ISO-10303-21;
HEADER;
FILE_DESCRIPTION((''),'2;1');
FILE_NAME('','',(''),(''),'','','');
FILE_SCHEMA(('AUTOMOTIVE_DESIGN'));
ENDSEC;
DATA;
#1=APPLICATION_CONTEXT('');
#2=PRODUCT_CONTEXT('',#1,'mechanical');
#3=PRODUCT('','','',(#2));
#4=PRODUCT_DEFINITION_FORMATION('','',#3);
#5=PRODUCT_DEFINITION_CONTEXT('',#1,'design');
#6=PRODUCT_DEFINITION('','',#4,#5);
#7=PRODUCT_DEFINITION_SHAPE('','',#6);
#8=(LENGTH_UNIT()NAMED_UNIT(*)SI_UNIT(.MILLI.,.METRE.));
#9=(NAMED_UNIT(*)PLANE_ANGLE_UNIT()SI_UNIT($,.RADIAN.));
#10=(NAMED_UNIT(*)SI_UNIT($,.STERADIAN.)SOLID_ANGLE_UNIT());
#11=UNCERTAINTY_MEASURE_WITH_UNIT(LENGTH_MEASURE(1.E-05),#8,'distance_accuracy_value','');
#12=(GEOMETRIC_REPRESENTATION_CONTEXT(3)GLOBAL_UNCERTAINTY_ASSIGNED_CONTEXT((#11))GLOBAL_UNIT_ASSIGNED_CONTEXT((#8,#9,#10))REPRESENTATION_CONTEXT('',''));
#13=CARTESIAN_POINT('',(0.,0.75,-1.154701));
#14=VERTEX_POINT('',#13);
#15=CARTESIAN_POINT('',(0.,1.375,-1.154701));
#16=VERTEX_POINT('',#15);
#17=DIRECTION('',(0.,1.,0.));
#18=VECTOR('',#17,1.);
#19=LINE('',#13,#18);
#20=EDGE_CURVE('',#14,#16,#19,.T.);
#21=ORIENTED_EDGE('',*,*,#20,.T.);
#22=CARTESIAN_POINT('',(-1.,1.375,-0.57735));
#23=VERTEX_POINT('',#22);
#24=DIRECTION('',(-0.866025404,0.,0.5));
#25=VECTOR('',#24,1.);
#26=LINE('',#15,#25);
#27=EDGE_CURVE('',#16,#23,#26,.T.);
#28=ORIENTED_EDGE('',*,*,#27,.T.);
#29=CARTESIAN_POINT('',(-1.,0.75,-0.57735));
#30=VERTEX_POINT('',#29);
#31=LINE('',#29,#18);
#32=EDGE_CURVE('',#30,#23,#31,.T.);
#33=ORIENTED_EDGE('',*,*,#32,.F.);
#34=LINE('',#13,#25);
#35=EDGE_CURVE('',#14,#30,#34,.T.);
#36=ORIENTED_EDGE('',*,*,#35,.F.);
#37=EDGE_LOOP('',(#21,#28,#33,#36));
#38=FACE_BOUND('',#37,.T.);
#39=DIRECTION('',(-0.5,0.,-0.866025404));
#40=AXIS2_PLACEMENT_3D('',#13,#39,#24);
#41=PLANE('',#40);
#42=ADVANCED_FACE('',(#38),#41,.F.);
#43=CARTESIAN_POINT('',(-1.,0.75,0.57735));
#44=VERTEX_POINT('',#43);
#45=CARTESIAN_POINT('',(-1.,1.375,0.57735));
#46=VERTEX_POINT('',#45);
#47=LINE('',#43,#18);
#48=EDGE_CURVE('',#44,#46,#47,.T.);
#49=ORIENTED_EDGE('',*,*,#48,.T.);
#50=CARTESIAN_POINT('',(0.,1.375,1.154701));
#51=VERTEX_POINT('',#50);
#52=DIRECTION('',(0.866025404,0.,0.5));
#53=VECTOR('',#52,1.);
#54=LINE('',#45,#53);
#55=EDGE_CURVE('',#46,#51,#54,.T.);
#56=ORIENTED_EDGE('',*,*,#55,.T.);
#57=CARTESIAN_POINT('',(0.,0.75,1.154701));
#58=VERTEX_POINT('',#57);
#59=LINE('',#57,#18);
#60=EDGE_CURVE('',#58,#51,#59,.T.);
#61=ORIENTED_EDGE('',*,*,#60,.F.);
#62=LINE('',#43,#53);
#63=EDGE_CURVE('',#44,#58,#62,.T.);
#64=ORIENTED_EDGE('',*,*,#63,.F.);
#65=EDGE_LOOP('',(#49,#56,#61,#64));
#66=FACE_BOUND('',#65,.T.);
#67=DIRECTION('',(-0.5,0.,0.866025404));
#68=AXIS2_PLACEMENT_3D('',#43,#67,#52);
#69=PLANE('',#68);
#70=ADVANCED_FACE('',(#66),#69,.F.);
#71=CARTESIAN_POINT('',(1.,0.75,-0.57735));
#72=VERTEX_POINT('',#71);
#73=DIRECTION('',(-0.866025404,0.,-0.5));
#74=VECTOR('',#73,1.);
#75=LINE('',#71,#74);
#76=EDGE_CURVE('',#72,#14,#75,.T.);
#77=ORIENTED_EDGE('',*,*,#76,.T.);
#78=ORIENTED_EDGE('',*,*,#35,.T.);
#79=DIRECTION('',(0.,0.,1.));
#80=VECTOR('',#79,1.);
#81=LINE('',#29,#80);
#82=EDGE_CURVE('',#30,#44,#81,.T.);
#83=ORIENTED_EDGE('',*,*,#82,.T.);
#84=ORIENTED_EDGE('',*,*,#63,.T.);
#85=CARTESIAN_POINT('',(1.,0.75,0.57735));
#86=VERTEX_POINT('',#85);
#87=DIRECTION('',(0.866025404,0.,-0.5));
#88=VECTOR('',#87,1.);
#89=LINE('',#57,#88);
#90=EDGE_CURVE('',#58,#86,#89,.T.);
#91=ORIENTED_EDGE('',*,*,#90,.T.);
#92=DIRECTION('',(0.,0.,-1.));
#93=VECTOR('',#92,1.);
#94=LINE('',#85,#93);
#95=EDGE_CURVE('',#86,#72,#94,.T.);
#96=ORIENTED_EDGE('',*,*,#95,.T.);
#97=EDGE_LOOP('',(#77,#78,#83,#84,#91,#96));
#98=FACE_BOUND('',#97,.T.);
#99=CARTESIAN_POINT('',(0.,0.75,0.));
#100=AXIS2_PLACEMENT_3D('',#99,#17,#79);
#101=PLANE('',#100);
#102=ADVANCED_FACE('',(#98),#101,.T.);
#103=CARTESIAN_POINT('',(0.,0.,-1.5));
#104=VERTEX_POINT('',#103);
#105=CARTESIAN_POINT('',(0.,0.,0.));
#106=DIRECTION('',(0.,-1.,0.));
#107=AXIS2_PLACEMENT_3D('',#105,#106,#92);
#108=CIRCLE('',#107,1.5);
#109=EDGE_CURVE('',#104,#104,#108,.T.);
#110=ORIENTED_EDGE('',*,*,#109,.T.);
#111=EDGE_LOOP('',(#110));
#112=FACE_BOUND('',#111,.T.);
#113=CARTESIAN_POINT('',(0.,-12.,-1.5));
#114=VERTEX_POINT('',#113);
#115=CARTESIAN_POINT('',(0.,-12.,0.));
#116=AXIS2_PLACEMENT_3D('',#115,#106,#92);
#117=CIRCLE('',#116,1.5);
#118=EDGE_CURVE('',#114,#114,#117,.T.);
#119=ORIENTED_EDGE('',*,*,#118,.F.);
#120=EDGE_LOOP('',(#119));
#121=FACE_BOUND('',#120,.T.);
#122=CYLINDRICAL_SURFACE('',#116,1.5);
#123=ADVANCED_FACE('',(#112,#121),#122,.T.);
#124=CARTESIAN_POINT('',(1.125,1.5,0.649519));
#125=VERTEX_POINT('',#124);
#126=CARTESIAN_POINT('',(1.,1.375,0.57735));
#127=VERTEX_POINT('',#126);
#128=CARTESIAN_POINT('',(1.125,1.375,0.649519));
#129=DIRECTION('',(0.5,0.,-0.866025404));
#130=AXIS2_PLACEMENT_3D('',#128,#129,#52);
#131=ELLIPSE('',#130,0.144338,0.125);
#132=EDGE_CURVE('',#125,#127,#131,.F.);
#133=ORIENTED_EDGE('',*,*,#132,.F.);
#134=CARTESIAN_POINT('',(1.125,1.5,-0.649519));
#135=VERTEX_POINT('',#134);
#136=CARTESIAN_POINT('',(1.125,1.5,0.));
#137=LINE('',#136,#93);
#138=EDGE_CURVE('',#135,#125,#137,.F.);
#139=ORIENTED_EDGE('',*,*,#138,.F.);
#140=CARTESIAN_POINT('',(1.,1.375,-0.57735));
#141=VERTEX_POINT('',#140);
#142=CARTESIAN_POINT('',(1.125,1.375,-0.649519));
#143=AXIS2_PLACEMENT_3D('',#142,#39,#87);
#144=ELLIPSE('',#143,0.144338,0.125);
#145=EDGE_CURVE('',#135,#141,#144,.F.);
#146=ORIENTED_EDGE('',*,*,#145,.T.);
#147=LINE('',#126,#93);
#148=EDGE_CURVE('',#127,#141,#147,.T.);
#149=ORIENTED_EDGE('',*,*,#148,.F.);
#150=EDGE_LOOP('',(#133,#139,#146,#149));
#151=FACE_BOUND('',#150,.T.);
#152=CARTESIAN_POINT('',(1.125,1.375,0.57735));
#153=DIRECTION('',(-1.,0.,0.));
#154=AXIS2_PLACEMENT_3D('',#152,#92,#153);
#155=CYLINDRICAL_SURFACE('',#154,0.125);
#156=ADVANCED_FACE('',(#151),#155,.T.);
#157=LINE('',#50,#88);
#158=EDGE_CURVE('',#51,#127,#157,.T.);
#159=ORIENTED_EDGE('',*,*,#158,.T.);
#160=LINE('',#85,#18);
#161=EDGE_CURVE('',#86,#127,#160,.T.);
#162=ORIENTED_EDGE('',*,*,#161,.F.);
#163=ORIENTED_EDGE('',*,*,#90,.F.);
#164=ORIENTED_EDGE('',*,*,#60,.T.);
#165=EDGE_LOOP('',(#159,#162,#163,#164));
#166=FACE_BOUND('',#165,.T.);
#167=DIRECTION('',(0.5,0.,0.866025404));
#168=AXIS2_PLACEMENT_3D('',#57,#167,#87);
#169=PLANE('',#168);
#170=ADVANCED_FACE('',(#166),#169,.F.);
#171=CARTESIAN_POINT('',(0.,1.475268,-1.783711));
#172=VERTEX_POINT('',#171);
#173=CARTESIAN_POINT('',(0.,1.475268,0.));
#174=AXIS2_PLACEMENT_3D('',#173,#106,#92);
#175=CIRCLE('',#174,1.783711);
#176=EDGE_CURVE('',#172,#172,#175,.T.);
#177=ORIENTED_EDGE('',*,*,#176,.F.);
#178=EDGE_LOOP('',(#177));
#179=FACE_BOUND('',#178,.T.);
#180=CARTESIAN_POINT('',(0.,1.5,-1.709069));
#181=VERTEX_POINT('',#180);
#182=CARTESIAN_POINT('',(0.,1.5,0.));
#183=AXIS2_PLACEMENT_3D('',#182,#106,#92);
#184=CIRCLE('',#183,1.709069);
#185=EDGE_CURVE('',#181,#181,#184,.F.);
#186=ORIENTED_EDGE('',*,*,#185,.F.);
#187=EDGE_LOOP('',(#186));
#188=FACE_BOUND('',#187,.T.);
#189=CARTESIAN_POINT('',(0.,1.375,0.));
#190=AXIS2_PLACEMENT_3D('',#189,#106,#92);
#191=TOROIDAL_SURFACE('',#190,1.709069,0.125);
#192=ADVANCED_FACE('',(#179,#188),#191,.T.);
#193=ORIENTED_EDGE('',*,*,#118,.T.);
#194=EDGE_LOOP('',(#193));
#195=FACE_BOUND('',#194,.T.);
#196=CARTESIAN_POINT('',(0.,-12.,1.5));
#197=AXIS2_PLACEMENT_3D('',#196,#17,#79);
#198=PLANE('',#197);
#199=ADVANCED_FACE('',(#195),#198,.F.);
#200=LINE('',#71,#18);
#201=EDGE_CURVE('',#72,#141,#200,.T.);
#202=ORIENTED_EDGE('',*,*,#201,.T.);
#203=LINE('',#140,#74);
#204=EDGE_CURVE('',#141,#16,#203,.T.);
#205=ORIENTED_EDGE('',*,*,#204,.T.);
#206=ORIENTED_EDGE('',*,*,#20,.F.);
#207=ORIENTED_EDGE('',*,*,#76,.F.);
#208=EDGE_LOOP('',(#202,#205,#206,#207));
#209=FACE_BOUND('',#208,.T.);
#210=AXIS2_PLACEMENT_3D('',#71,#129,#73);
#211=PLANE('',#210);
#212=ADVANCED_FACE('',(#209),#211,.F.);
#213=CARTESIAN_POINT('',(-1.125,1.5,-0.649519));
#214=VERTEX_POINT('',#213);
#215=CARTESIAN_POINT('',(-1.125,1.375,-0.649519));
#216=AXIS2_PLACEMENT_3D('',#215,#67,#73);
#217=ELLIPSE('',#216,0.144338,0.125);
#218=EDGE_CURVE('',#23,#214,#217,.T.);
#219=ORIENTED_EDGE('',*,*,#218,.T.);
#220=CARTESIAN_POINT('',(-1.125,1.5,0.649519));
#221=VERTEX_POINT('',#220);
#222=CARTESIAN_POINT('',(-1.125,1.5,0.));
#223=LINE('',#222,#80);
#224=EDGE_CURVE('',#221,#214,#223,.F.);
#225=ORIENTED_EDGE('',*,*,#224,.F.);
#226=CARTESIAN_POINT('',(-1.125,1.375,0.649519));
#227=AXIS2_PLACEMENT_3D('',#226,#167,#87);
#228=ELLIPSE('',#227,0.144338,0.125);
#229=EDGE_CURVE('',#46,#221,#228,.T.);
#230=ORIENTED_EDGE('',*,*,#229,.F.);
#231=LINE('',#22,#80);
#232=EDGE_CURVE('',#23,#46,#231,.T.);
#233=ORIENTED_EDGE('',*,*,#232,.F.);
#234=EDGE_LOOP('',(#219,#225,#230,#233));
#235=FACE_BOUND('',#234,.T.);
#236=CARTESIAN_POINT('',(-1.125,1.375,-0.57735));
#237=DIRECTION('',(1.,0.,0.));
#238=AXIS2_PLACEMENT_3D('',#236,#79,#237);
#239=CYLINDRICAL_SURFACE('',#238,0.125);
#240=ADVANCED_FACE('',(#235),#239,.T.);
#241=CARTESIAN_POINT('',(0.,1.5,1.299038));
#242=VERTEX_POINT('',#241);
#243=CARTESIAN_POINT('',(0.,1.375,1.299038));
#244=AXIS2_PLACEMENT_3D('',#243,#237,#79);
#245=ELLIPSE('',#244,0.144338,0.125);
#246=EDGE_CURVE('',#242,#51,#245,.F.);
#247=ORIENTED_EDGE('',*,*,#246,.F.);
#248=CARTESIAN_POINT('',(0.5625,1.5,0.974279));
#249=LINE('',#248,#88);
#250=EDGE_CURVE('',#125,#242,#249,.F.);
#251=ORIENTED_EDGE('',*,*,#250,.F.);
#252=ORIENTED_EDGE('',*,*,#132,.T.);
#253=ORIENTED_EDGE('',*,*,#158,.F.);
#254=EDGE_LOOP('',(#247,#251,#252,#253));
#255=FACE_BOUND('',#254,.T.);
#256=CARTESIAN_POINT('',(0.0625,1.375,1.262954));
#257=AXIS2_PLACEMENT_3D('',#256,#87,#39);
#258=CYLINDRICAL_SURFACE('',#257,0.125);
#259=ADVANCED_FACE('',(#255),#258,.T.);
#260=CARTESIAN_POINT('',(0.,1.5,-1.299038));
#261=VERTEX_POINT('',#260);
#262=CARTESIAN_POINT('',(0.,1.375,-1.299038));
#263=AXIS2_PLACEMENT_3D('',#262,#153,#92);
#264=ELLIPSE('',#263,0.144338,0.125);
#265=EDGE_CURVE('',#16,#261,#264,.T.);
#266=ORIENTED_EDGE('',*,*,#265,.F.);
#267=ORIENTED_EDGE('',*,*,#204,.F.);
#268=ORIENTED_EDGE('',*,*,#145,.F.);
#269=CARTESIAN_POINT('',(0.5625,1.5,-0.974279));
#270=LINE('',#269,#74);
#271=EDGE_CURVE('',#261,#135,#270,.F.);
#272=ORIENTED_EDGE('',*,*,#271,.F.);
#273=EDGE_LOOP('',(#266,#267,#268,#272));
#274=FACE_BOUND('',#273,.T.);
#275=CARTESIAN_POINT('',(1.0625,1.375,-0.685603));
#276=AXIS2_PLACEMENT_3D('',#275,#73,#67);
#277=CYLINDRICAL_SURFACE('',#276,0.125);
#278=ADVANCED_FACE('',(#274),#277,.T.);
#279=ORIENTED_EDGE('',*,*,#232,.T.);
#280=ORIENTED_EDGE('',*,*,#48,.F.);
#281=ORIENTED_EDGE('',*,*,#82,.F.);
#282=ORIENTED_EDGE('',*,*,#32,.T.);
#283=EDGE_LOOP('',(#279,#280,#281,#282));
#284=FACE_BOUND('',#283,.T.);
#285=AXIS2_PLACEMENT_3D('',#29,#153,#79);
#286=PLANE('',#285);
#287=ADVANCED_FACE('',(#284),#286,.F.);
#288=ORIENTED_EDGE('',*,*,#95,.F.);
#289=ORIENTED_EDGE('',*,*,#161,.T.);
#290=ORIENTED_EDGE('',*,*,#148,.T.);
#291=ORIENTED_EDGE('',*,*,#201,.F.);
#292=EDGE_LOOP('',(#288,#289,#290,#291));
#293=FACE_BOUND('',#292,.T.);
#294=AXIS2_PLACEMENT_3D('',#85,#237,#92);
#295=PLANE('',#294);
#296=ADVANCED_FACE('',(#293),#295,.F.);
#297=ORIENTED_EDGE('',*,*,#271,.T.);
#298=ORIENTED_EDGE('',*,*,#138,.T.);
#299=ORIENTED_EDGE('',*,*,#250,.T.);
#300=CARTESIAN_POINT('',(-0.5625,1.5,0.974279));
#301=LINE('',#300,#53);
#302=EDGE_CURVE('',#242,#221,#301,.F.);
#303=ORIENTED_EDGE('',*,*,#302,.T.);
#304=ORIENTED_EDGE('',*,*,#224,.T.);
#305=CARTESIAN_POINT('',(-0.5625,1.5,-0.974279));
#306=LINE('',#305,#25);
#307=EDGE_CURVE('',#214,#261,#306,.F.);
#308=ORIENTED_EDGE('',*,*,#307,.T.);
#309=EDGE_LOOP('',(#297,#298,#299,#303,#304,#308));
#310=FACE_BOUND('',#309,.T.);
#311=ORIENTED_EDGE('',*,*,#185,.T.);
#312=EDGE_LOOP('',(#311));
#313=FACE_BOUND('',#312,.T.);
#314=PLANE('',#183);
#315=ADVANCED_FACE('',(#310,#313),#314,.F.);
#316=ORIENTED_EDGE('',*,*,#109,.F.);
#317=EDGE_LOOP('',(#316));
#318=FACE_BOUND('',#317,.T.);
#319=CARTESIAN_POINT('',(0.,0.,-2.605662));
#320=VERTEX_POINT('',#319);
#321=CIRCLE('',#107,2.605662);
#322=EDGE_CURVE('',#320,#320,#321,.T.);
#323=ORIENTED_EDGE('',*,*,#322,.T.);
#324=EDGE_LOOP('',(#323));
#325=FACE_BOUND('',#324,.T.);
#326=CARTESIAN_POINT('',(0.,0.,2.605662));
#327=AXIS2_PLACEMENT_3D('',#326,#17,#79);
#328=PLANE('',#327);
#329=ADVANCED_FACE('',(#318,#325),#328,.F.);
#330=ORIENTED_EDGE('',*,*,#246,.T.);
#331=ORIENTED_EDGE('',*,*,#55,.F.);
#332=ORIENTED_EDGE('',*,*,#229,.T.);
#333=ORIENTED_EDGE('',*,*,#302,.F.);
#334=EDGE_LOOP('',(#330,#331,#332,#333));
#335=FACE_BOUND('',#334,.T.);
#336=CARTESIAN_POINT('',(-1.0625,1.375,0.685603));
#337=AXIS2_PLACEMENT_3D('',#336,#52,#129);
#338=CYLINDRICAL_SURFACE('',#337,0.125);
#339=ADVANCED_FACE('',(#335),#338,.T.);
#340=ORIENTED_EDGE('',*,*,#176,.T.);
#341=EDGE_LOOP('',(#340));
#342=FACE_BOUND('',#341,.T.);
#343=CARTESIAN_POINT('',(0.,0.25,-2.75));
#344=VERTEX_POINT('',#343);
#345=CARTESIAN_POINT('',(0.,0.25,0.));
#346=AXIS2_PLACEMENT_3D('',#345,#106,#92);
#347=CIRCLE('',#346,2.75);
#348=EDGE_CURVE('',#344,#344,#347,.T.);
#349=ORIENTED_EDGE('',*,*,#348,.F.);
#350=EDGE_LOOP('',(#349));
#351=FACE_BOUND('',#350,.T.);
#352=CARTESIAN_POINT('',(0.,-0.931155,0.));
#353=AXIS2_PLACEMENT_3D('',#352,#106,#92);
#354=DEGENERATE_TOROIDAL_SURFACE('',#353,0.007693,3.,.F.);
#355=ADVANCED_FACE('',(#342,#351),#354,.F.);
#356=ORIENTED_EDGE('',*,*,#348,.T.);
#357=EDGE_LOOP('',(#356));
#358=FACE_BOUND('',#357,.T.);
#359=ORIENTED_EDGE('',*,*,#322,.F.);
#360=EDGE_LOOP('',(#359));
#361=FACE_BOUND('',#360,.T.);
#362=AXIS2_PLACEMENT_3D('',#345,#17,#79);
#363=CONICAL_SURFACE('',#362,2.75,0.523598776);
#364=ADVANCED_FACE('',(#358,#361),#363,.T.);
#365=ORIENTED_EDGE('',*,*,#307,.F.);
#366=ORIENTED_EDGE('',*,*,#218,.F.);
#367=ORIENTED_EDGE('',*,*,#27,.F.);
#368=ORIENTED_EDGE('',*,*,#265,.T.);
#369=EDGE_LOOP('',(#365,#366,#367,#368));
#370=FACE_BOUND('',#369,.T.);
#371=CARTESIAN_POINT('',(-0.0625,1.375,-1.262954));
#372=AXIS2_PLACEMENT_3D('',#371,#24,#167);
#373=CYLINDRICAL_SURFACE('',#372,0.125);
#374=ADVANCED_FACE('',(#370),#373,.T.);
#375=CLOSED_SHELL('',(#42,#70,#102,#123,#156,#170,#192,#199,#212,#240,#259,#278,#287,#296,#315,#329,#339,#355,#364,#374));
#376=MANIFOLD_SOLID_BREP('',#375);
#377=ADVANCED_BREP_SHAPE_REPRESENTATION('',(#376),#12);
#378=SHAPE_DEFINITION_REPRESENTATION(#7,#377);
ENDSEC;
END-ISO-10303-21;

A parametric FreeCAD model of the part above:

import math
import FreeCAD as App
import Part
import Sketcher
from FreeCAD import Vector
Q = App.Units.Quantity


def edges_at(feature, points):
    """Names of the edges that pass closest to the given points."""
    edges = feature.Shape.Edges
    near = lambda p: min(range(len(edges)), key=lambda i: edges[i].distToShape(Part.Vertex(*p))[0])
    return sorted({f"Edge{near(p) + 1}" for p in points})

doc = App.newDocument("Part")
body = doc.addObject("PartDesign::Body", "Body")

# Sketch on YZ plane
sketch1 = body.newObject("Sketcher::SketchObject", "Sketch")
sketch1.AttachmentSupport = (doc.getObject("YZ_Plane"), [""])
sketch1.MapMode = "FlatFace"
sketch1.addGeometry([
    Part.LineSegment(Vector(1.5, 0, 0), Vector(1.5, 1.75, 0)),  # 0
    Part.ArcOfCircle(Part.Circle(Vector(-0.93, -0.01, 0), Vector(0, 0, 1), 3), math.radians(36), math.radians(67)),  # 1
    Part.LineSegment(Vector(0.25, 2.75, 0), Vector(0, 2.61, 0)),  # 2
    Part.LineSegment(Vector(0, 2.61, 0), Vector(0, 1.5, 0)),  # 3
    Part.LineSegment(Vector(0, 1.5, 0), Vector(-12, 1.5, 0)),  # 4
    Part.LineSegment(Vector(-12, 1.5, 0), Vector(-12, 0, 0)),  # 5
    Part.LineSegment(Vector(-12, 0, 0), Vector(1.5, 0, 0)),  # 6
], False)
sketch1.addConstraint([
    Sketcher.Constraint("Coincident", 0, 2, 1, 1),
    Sketcher.Constraint("Coincident", 1, 2, 2, 1),
    Sketcher.Constraint("Coincident", 2, 2, 3, 1),
    Sketcher.Constraint("Coincident", 3, 2, 4, 1),
    Sketcher.Constraint("Coincident", 4, 2, 5, 1),
    Sketcher.Constraint("Coincident", 5, 2, 6, 1),
    Sketcher.Constraint("Coincident", 6, 2, 0, 1),
    Sketcher.Constraint("Vertical", 0),
    Sketcher.Constraint("Vertical", 3),
    Sketcher.Constraint("Horizontal", 4),
    Sketcher.Constraint("Vertical", 5),
    Sketcher.Constraint("Horizontal", 6),
    Sketcher.Constraint("PointOnObject", 2, 2, -2),
    Sketcher.Constraint("PointOnObject", 5, 2, -1),
    Sketcher.Constraint("Radius", 1, Q("3 mm")),
    Sketcher.Constraint("DistanceX", 4, 2, 4, 1, Q("12 mm")),
    Sketcher.Constraint("Angle", 2, Q("-150 deg")),
    Sketcher.Constraint("DistanceX", 6, 1, 6, 2, Q("13.5 mm")),
    Sketcher.Constraint("DistanceY", 5, 2, 5, 1, Q("1.5 mm")),
    Sketcher.Constraint("DistanceY", 0, 2, 1, 2, Q("1 mm")),
    Sketcher.Constraint("DistanceY", 0, 1, 0, 2, Q("1.75 mm")),
    Sketcher.Constraint("DistanceX", -1, 1, 1, 2, Q("0.25 mm")),
])
revolution = body.newObject("PartDesign::Revolution", "Revolution")
revolution.Profile = sketch1
revolution.ReferenceAxis = (sketch1, ["H_Axis"])
revolution.Angle = 360

# Sketch on XZ plane
sketch2 = body.newObject("Sketcher::SketchObject", "Sketch001")
sketch2.AttachmentSupport = (doc.getObject("XZ_Plane"), [""])
sketch2.MapMode = "FlatFace"
sketch2.AttachmentOffset = App.Placement(Vector(0, 0, -1.5), App.Rotation())
sketch2.addGeometry([
    Part.LineSegment(Vector(0, -1.2, 0), Vector(-1, -0.6, 0)),  # 0
    Part.LineSegment(Vector(-1, -0.6, 0), Vector(-1, 0.6, 0)),  # 1
    Part.LineSegment(Vector(-1, 0.6, 0), Vector(0, 1.2, 0)),  # 2
    Part.LineSegment(Vector(0, 1.2, 0), Vector(1, 0.6, 0)),  # 3
    Part.LineSegment(Vector(1, 0.6, 0), Vector(1, -0.6, 0)),  # 4
    Part.LineSegment(Vector(1, -0.6, 0), Vector(0, -1.2, 0)),  # 5
], False)
sketch2.addConstraint([
    Sketcher.Constraint("Coincident", 0, 2, 1, 1),
    Sketcher.Constraint("Coincident", 1, 2, 2, 1),
    Sketcher.Constraint("Coincident", 2, 2, 3, 1),
    Sketcher.Constraint("Coincident", 3, 2, 4, 1),
    Sketcher.Constraint("Coincident", 4, 2, 5, 1),
    Sketcher.Constraint("Coincident", 5, 2, 0, 1),
    Sketcher.Constraint("Vertical", 1),
    Sketcher.Constraint("Vertical", 4),
    Sketcher.Constraint("Symmetric", 0, 2, 3, 2, -1, 1),
    Sketcher.Constraint("Symmetric", 2, 2, 5, 2, -1, 1),
    Sketcher.Constraint("PointOnObject", 2, 2, -2),
    Sketcher.Constraint("Parallel", 2, 5),
    Sketcher.Constraint("Horizontal", 1, 2, 3, 2),
    Sketcher.Constraint("Angle", 0, Q("150 deg")),
    Sketcher.Constraint("DistanceX", 0, 2, -1, 1, Q("1 mm")),
    Sketcher.Constraint("DistanceY", 1, 1, 1, 2, Q("1.154701 mm")),
])
pocket1 = body.newObject("PartDesign::Pocket", "Pocket")
pocket1.Profile = sketch2
pocket1.Length = 0.75
pocket1.Reversed = True
doc.recompute()

fillet = body.newObject("PartDesign::Fillet", "Fillet")
fillet.Base = (pocket1, edges_at(pocket1, [
    (0.5, 1.5, -0.866),
    (-0.5, 1.5, -0.866),
    (-1, 1.5, 0),
    (-0.5, 1.5, 0.866),
    (0.5, 1.5, 0.866),
    (1, 1.5, 0),
    (0, 1.5, -1.75),
]))
fillet.Radius = 0.125

doc.recompute()
